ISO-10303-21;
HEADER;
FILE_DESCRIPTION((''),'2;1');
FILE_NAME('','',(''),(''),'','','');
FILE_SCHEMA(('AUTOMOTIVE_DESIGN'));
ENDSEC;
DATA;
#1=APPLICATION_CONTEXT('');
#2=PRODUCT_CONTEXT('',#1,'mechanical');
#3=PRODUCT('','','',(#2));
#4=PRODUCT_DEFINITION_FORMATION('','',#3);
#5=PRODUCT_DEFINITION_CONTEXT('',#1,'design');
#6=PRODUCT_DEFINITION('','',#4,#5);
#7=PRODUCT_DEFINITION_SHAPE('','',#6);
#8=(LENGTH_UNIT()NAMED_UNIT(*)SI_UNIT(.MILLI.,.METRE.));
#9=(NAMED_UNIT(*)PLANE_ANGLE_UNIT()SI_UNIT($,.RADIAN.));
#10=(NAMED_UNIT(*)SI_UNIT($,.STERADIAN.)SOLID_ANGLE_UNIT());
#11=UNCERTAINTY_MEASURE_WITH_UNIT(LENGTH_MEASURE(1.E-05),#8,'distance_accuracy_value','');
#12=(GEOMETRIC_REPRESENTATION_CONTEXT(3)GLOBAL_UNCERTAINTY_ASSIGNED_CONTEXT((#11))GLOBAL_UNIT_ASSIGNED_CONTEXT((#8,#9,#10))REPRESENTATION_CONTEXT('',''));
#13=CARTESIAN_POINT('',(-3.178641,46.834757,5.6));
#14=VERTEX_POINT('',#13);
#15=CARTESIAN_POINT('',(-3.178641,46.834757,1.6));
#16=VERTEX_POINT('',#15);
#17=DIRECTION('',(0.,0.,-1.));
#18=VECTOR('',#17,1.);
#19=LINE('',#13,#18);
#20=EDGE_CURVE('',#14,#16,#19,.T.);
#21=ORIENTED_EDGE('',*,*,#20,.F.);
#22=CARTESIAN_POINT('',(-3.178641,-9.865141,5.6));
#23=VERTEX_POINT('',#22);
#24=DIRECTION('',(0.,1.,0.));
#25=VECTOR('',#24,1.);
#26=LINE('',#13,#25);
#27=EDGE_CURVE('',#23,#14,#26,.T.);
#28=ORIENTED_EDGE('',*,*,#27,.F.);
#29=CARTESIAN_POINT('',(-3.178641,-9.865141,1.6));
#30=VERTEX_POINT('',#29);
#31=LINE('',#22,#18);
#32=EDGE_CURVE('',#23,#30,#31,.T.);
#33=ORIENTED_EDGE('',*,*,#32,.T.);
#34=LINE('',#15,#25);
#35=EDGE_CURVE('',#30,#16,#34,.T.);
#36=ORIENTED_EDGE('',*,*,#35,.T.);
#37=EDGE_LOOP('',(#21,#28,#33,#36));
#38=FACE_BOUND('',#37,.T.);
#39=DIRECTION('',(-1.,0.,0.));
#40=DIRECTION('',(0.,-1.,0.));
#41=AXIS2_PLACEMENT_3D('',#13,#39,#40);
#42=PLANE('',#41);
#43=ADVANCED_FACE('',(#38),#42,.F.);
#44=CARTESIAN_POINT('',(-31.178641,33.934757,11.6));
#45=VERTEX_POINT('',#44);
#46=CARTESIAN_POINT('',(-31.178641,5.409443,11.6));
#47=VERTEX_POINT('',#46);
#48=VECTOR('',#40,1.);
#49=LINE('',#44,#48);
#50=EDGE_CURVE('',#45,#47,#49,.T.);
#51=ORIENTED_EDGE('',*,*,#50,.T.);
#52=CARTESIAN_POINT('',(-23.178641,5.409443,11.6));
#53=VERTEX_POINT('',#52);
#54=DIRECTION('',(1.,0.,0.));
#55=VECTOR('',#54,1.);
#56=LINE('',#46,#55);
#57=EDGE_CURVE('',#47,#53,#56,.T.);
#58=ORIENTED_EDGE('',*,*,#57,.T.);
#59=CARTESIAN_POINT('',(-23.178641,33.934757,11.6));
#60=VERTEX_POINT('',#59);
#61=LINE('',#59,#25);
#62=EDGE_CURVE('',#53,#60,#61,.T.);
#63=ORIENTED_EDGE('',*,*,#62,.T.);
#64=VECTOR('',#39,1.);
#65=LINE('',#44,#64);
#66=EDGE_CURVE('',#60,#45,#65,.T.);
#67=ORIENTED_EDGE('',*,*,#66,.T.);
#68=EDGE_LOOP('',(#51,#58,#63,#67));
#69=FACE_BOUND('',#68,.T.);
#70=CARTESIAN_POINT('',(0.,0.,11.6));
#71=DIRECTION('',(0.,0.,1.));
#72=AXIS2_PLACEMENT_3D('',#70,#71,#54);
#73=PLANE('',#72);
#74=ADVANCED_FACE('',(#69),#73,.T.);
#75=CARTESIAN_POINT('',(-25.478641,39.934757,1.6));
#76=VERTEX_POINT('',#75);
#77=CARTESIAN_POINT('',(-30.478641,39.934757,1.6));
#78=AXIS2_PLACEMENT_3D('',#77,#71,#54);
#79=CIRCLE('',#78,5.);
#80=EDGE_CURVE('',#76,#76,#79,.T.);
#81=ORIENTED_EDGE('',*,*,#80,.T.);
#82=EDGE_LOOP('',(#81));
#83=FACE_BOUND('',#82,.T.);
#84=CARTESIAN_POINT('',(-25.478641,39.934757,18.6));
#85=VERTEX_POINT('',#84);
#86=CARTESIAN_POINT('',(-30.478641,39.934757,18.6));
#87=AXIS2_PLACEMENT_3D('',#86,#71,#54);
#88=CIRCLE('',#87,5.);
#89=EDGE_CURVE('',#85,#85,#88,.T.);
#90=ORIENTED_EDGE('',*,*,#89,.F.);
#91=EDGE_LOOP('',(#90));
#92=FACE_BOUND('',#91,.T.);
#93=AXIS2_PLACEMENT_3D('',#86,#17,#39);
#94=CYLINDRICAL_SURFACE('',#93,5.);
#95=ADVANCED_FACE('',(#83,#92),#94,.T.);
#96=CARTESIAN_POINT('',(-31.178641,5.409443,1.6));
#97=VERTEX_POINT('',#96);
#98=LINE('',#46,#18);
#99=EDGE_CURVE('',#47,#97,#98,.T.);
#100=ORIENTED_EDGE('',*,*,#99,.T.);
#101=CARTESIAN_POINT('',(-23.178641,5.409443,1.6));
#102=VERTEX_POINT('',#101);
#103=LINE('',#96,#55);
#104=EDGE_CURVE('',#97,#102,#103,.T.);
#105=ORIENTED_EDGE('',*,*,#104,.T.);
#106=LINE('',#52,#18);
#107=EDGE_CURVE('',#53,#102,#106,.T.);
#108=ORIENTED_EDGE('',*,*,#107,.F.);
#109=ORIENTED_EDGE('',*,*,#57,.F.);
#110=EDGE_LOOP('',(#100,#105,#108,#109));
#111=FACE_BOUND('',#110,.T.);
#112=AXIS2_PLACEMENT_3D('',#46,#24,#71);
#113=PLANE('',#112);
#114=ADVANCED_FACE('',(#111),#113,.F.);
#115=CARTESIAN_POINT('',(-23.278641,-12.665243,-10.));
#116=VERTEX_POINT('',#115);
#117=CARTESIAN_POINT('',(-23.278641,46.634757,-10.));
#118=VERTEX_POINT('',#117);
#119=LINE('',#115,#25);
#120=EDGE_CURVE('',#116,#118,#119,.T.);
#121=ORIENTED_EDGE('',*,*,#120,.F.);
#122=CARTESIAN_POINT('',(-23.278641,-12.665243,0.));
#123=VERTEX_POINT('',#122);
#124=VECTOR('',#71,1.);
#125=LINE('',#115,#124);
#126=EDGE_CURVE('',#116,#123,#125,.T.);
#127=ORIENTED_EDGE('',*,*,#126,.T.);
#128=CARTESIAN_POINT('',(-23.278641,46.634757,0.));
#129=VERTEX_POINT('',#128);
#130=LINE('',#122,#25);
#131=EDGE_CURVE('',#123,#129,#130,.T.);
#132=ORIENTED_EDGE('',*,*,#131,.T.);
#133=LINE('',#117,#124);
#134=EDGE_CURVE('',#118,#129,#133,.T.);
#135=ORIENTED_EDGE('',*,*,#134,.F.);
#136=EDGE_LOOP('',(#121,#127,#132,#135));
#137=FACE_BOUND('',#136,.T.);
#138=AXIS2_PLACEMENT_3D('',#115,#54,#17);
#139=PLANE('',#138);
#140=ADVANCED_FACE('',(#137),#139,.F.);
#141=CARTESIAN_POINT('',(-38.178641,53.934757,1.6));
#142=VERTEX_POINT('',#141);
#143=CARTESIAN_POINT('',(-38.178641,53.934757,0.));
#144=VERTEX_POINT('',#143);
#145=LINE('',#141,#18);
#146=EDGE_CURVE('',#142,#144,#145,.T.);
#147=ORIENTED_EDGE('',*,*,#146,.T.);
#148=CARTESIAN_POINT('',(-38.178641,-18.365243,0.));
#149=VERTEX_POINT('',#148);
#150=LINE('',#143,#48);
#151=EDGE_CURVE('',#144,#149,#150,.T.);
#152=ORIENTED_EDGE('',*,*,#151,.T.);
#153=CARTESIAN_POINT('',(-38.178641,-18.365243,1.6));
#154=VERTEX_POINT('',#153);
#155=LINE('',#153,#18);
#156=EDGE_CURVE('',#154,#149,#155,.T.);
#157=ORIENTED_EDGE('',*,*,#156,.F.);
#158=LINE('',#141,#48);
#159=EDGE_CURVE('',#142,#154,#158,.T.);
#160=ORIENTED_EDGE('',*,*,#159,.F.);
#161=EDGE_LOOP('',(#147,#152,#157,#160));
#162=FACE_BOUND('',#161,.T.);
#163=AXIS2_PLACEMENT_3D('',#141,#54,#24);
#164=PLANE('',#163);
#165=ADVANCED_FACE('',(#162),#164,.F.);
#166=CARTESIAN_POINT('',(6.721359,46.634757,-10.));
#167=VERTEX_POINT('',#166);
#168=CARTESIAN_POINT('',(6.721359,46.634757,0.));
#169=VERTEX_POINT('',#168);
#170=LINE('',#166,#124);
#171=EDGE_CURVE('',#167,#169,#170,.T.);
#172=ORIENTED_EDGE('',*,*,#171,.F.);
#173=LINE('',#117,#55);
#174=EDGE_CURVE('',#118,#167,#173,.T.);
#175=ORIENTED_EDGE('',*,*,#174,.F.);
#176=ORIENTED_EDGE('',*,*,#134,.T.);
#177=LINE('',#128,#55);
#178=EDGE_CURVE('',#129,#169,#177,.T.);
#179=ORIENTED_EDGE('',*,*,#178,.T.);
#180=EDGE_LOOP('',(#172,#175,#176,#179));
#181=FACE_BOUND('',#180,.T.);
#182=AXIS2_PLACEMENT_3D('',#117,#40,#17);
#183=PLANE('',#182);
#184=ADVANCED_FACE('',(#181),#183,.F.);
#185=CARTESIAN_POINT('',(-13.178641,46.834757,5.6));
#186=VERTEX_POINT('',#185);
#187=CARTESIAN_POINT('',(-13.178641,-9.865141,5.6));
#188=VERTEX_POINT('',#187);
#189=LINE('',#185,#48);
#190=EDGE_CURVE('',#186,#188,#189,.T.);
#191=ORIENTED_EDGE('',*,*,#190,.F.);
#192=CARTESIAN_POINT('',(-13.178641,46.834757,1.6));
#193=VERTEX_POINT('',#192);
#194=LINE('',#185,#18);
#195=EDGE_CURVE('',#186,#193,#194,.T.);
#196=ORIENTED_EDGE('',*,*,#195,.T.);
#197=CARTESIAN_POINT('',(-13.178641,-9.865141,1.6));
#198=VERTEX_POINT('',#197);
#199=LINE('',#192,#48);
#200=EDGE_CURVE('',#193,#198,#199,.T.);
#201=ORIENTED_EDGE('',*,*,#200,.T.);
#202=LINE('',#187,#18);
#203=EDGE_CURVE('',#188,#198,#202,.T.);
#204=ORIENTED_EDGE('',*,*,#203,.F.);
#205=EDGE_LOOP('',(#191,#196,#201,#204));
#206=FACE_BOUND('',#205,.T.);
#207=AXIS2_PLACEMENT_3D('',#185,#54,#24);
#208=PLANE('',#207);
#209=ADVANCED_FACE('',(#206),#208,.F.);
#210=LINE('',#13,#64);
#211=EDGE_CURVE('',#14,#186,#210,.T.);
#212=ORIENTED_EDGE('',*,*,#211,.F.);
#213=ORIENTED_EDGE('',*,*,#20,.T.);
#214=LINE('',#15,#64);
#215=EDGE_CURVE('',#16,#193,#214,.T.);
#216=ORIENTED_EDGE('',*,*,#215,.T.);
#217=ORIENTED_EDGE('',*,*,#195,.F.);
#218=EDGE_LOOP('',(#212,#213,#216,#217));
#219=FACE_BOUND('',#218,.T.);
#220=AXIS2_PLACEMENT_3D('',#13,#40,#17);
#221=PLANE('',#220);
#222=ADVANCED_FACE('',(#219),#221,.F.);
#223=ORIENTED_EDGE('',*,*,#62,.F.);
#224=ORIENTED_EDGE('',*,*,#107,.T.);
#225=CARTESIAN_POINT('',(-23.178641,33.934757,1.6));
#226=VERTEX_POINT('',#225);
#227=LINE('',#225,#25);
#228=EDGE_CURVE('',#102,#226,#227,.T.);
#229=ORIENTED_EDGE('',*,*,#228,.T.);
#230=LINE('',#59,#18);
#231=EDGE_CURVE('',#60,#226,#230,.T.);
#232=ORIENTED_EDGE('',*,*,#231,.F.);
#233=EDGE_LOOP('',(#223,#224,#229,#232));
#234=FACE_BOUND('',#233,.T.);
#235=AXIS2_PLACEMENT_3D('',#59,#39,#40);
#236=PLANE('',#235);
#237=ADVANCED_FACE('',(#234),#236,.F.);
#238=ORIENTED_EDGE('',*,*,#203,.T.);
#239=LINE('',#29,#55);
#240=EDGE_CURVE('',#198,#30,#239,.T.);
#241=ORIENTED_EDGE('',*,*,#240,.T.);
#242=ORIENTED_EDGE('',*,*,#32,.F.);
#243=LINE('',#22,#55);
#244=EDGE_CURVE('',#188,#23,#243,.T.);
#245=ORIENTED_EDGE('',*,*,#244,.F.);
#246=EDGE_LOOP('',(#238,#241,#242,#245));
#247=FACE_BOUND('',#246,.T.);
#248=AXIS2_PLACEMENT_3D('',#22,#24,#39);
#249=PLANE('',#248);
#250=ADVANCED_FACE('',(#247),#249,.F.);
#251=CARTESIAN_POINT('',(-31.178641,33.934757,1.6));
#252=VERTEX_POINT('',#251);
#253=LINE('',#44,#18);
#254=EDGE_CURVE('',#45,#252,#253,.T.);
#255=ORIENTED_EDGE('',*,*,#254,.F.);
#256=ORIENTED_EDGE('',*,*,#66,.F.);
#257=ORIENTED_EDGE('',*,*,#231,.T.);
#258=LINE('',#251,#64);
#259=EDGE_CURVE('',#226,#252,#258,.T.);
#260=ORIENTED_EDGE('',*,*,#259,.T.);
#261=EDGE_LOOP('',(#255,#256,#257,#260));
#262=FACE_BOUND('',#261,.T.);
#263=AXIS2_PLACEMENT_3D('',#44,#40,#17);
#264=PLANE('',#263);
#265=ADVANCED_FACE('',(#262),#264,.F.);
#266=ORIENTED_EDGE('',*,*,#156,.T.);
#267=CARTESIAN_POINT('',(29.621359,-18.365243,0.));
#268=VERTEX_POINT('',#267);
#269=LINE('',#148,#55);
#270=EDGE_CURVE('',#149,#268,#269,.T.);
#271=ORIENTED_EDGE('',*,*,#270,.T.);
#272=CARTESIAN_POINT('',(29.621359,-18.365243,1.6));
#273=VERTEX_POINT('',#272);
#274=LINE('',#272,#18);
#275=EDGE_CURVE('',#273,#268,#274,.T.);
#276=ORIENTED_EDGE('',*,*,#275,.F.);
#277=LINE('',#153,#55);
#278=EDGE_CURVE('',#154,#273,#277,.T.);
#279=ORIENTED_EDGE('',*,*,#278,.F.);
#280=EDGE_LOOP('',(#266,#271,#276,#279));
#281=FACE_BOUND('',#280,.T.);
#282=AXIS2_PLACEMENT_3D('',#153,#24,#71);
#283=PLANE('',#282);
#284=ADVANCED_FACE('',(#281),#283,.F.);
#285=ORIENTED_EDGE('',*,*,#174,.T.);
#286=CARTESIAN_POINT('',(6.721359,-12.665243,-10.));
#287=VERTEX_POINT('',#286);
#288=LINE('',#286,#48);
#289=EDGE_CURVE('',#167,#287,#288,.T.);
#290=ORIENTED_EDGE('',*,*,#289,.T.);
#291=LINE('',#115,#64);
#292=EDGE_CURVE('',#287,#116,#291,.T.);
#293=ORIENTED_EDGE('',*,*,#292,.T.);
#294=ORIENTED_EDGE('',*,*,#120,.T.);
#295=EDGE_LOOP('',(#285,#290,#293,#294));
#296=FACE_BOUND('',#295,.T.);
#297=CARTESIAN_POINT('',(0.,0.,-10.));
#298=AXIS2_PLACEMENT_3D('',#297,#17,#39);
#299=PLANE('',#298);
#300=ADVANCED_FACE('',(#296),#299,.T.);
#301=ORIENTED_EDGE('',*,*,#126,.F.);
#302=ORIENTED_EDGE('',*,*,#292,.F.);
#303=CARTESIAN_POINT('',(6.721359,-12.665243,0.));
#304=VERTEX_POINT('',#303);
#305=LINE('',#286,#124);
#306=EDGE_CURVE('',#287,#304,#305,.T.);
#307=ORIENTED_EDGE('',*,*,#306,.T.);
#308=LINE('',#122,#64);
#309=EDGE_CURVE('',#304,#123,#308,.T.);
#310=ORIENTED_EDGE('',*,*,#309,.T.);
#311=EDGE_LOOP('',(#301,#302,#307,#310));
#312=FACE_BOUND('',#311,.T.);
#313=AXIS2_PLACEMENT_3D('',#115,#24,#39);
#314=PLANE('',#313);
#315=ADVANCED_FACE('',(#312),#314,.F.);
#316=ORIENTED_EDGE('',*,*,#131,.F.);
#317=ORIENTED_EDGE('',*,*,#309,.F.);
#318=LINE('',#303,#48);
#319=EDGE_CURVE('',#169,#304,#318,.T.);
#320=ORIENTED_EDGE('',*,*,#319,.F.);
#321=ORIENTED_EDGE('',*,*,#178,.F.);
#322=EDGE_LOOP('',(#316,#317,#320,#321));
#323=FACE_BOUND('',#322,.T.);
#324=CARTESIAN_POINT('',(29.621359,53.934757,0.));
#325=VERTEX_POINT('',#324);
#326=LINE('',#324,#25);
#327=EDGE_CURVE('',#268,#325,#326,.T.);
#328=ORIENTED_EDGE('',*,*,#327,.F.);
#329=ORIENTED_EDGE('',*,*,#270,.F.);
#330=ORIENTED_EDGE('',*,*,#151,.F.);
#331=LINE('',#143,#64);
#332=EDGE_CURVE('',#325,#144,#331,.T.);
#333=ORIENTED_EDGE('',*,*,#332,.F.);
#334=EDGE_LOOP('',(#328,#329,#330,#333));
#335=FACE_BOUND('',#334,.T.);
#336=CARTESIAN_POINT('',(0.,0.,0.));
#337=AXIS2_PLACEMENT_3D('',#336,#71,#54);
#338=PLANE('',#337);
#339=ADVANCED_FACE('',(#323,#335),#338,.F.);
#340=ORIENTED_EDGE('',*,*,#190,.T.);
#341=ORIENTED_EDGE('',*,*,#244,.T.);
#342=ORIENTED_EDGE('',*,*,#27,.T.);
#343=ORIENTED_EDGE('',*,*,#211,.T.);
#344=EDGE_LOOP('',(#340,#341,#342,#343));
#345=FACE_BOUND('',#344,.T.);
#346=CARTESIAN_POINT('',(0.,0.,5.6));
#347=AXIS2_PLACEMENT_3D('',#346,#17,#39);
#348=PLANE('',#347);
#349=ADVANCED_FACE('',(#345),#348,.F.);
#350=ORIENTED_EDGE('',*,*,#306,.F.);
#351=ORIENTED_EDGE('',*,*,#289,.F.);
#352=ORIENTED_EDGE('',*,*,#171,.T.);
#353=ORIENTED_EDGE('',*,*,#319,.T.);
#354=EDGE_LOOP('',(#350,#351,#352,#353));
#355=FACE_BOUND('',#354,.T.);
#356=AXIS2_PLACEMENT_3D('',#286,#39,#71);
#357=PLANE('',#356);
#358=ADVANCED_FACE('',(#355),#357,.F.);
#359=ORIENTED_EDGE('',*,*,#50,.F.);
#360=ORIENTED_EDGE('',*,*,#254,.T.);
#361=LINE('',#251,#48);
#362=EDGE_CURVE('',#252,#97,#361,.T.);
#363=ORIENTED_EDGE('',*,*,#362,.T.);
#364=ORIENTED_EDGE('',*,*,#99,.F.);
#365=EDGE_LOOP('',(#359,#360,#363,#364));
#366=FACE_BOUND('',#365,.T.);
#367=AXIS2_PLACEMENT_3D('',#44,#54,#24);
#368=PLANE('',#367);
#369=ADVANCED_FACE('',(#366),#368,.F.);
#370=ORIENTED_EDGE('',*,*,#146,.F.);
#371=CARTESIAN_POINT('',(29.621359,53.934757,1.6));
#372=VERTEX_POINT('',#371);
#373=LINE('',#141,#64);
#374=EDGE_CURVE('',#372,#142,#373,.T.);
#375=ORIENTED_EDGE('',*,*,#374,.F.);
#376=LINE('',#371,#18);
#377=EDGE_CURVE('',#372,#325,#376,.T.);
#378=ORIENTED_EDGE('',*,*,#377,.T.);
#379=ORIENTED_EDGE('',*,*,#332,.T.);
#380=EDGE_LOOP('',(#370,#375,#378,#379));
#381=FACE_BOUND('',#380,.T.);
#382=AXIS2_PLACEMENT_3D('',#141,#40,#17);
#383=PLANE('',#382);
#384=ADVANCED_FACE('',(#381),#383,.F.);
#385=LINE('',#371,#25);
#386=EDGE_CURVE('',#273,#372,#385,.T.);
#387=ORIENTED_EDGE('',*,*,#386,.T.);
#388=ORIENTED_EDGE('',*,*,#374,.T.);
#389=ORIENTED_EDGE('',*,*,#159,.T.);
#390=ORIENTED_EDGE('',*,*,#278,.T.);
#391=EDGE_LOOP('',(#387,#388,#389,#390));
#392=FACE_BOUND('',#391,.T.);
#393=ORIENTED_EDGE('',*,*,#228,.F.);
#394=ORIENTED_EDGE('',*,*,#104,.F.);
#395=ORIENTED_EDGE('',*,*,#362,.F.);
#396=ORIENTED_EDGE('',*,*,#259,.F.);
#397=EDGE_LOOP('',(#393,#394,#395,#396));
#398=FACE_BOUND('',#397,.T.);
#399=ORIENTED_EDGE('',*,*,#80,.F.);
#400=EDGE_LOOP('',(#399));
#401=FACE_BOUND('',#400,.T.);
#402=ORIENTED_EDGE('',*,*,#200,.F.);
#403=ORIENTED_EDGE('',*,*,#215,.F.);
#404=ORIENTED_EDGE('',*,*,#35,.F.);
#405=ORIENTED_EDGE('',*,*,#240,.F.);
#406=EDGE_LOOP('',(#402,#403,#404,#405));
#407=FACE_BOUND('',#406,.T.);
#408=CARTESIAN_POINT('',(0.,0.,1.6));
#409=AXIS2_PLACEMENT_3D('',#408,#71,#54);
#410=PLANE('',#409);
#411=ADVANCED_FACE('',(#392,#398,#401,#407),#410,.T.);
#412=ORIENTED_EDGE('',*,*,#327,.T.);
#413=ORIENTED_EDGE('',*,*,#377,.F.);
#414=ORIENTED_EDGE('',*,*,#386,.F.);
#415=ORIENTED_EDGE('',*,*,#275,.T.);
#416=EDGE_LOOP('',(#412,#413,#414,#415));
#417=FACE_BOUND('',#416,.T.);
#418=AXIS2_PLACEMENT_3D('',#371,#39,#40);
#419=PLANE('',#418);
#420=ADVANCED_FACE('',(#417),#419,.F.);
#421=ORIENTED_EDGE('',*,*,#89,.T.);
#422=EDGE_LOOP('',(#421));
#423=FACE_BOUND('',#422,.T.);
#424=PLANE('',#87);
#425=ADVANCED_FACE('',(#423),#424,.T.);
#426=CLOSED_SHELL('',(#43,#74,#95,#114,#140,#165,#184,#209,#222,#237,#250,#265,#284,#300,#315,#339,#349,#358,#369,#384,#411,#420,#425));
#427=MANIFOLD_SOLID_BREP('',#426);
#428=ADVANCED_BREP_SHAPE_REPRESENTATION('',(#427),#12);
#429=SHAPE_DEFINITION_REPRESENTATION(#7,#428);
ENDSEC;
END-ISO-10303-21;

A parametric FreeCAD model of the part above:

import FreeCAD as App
import Part
import Sketcher
from FreeCAD import Vector
Q = App.Units.Quantity

doc = App.newDocument("Part")
body = doc.addObject("PartDesign::Body", "Body")

# Sketch on XY plane
sketch1 = body.newObject("Sketcher::SketchObject", "Sketch")
sketch1.AttachmentSupport = (doc.getObject("XY_Plane"), [""])
sketch1.MapMode = "FlatFace"
sketch1.addGeometry([
    Part.LineSegment(Vector(-38.178641, 53.934757, 0), Vector(-38.178641, -18.365243, 0)),
    Part.LineSegment(Vector(-38.178641, -18.365243, 0), Vector(29.621359, -18.365243, 0)),
    Part.LineSegment(Vector(29.621359, -18.365243, 0), Vector(29.621359, 53.934757, 0)),
    Part.LineSegment(Vector(29.621359, 53.934757, 0), Vector(-38.178641, 53.934757, 0)),
], False)
sketch1.addConstraint([
    Sketcher.Constraint("Coincident", 0, 2, 1, 1),
    Sketcher.Constraint("Coincident", 1, 2, 2, 1),
    Sketcher.Constraint("Coincident", 2, 2, 3, 1),
    Sketcher.Constraint("Coincident", 3, 2, 0, 1),
    Sketcher.Constraint("Vertical", 0),
    Sketcher.Constraint("Horizontal", 1),
    Sketcher.Constraint("Vertical", 2),
    Sketcher.Constraint("Horizontal", 3),
    Sketcher.Constraint("DistanceX", 1, 1, 1, 2, Q("67.8 mm")),
    Sketcher.Constraint("DistanceY", 0, 2, 0, 1, Q("72.3 mm")),
    Sketcher.Constraint("DistanceX", 0, 2, -1, 1, Q("38.178641 mm")),
    Sketcher.Constraint("DistanceY", 0, 2, -1, 1, Q("18.365243 mm")),
])
pad1 = body.newObject("PartDesign::Pad", "Pad")
pad1.Profile = sketch1
pad1.Length = 1.6

# Sketch on XY plane
sketch2 = body.newObject("Sketcher::SketchObject", "Sketch001")
sketch2.AttachmentSupport = (doc.getObject("XY_Plane"), [""])
sketch2.MapMode = "FlatFace"
sketch2.AttachmentOffset = App.Placement(Vector(0, 0, 1.6), App.Rotation())
sketch2.addGeometry([
    Part.LineSegment(Vector(-13.178641, 46.834757, 0), Vector(-13.178641, -9.865141, 0)),
    Part.LineSegment(Vector(-13.178641, -9.865141, 0), Vector(-3.178641, -9.865141, 0)),
    Part.LineSegment(Vector(-3.178641, -9.865141, 0), Vector(-3.178641, 46.834757, 0)),
    Part.LineSegment(Vector(-3.178641, 46.834757, 0), Vector(-13.178641, 46.834757, 0)),
], False)
sketch2.addConstraint([
    Sketcher.Constraint("Coincident", 0, 2, 1, 1),
    Sketcher.Constraint("Coincident", 1, 2, 2, 1),
    Sketcher.Constraint("Coincident", 2, 2, 3, 1),
    Sketcher.Constraint("Coincident", 3, 2, 0, 1),
    Sketcher.Constraint("Vertical", 0),
    Sketcher.Constraint("Horizontal", 1),
    Sketcher.Constraint("Vertical", 2),
    Sketcher.Constraint("Horizontal", 3),
    Sketcher.Constraint("DistanceX", 1, 1, 1, 2, Q("10 mm")),
    Sketcher.Constraint("DistanceY", 0, 2, 0, 1, Q("56.699898 mm")),
    Sketcher.Constraint("DistanceX", 0, 2, -1, 1, Q("13.178641 mm")),
    Sketcher.Constraint("DistanceY", 0, 2, -1, 1, Q("9.865141 mm")),
])
pad2 = body.newObject("PartDesign::Pad", "Pad001")
pad2.Profile = sketch2
pad2.Length = 4

# Sketch on XY plane
sketch3 = body.newObject("Sketcher::SketchObject", "Sketch002")
sketch3.AttachmentSupport = (doc.getObject("XY_Plane"), [""])
sketch3.MapMode = "FlatFace"
sketch3.AttachmentOffset = App.Placement(Vector(0, 0, 1.6), App.Rotation())
sketch3.addGeometry([
    Part.LineSegment(Vector(-31.178641, 33.934757, 0), Vector(-31.178641, 5.409443, 0)),
    Part.LineSegment(Vector(-31.178641, 5.409443, 0), Vector(-23.178641, 5.409443, 0)),
    Part.LineSegment(Vector(-23.178641, 5.409443, 0), Vector(-23.178641, 33.934757, 0)),
    Part.LineSegment(Vector(-23.178641, 33.934757, 0), Vector(-31.178641, 33.934757, 0)),
], False)
sketch3.addConstraint([
    Sketcher.Constraint("Coincident", 0, 2, 1, 1),
    Sketcher.Constraint("Coincident", 1, 2, 2, 1),
    Sketcher.Constraint("Coincident", 2, 2, 3, 1),
    Sketcher.Constraint("Coincident", 3, 2, 0, 1),
    Sketcher.Constraint("Vertical", 0),
    Sketcher.Constraint("Horizontal", 1),
    Sketcher.Constraint("Vertical", 2),
    Sketcher.Constraint("Horizontal", 3),
    Sketcher.Constraint("DistanceX", 1, 1, 1, 2, Q("8 mm")),
    Sketcher.Constraint("DistanceY", 0, 2, 0, 1, Q("28.525314 mm")),
    Sketcher.Constraint("DistanceX", 0, 2, -1, 1, Q("31.178641 mm")),
    Sketcher.Constraint("DistanceY", -1, 1, 0, 2, Q("5.409443 mm")),
])
pad3 = body.newObject("PartDesign::Pad", "Pad002")
pad3.Profile = sketch3
pad3.Length = 10

# Sketch on XY plane
sketch4 = body.newObject("Sketcher::SketchObject", "Sketch003")
sketch4.AttachmentSupport = (doc.getObject("XY_Plane"), [""])
sketch4.MapMode = "FlatFace"
sketch4.AttachmentOffset = App.Placement(Vector(0, 0, 1.6), App.Rotation())
sketch4.addGeometry(Part.Circle(Vector(-30.478641, 39.934757, 0), Vector(0, 0, 1), 5), False)
sketch4.addConstraint([
    Sketcher.Constraint("Diameter", 0, Q("10 mm")),
    Sketcher.Constraint("DistanceX", 0, 3, -1, 1, Q("30.478641 mm")),
    Sketcher.Constraint("DistanceY", -1, 1, 0, 3, Q("39.934757 mm")),
])
pad4 = body.newObject("PartDesign::Pad", "Pad003")
pad4.Profile = sketch4
pad4.Length = 17

# Sketch on XY plane
sketch5 = body.newObject("Sketcher::SketchObject", "Sketch004")
sketch5.AttachmentSupport = (doc.getObject("XY_Plane"), [""])
sketch5.MapMode = "FlatFace"
sketch5.addGeometry([
    Part.LineSegment(Vector(6.721359, 46.634757, 0), Vector(6.721359, -12.665243, 0)),
    Part.LineSegment(Vector(6.721359, -12.665243, 0), Vector(-23.278641, -12.665243, 0)),
    Part.LineSegment(Vector(-23.278641, -12.665243, 0), Vector(-23.278641, 46.634757, 0)),
    Part.LineSegment(Vector(-23.278641, 46.634757, 0), Vector(6.721359, 46.634757, 0)),
], False)
sketch5.addConstraint([
    Sketcher.Constraint("Coincident", 0, 2, 1, 1),
    Sketcher.Constraint("Coincident", 1, 2, 2, 1),
    Sketcher.Constraint("Coincident", 2, 2, 3, 1),
    Sketcher.Constraint("Coincident", 3, 2, 0, 1),
    Sketcher.Constraint("Vertical", 0),
    Sketcher.Constraint("Horizontal", 1),
    Sketcher.Constraint("Vertical", 2),
    Sketcher.Constraint("Horizontal", 3),
    Sketcher.Constraint("DistanceX", 1, 2, 1, 1, Q("30 mm")),
    Sketcher.Constraint("DistanceY", 0, 2, 0, 1, Q("59.3 mm")),
    Sketcher.Constraint("DistanceX", -1, 1, 0, 2, Q("6.721359 mm")),
    Sketcher.Constraint("DistanceY", 0, 2, -1, 1, Q("12.665243 mm")),
])
pad5 = body.newObject("PartDesign::Pad", "Pad004")
pad5.Profile = sketch5
pad5.Length = 10
pad5.Reversed = True

doc.recompute()
